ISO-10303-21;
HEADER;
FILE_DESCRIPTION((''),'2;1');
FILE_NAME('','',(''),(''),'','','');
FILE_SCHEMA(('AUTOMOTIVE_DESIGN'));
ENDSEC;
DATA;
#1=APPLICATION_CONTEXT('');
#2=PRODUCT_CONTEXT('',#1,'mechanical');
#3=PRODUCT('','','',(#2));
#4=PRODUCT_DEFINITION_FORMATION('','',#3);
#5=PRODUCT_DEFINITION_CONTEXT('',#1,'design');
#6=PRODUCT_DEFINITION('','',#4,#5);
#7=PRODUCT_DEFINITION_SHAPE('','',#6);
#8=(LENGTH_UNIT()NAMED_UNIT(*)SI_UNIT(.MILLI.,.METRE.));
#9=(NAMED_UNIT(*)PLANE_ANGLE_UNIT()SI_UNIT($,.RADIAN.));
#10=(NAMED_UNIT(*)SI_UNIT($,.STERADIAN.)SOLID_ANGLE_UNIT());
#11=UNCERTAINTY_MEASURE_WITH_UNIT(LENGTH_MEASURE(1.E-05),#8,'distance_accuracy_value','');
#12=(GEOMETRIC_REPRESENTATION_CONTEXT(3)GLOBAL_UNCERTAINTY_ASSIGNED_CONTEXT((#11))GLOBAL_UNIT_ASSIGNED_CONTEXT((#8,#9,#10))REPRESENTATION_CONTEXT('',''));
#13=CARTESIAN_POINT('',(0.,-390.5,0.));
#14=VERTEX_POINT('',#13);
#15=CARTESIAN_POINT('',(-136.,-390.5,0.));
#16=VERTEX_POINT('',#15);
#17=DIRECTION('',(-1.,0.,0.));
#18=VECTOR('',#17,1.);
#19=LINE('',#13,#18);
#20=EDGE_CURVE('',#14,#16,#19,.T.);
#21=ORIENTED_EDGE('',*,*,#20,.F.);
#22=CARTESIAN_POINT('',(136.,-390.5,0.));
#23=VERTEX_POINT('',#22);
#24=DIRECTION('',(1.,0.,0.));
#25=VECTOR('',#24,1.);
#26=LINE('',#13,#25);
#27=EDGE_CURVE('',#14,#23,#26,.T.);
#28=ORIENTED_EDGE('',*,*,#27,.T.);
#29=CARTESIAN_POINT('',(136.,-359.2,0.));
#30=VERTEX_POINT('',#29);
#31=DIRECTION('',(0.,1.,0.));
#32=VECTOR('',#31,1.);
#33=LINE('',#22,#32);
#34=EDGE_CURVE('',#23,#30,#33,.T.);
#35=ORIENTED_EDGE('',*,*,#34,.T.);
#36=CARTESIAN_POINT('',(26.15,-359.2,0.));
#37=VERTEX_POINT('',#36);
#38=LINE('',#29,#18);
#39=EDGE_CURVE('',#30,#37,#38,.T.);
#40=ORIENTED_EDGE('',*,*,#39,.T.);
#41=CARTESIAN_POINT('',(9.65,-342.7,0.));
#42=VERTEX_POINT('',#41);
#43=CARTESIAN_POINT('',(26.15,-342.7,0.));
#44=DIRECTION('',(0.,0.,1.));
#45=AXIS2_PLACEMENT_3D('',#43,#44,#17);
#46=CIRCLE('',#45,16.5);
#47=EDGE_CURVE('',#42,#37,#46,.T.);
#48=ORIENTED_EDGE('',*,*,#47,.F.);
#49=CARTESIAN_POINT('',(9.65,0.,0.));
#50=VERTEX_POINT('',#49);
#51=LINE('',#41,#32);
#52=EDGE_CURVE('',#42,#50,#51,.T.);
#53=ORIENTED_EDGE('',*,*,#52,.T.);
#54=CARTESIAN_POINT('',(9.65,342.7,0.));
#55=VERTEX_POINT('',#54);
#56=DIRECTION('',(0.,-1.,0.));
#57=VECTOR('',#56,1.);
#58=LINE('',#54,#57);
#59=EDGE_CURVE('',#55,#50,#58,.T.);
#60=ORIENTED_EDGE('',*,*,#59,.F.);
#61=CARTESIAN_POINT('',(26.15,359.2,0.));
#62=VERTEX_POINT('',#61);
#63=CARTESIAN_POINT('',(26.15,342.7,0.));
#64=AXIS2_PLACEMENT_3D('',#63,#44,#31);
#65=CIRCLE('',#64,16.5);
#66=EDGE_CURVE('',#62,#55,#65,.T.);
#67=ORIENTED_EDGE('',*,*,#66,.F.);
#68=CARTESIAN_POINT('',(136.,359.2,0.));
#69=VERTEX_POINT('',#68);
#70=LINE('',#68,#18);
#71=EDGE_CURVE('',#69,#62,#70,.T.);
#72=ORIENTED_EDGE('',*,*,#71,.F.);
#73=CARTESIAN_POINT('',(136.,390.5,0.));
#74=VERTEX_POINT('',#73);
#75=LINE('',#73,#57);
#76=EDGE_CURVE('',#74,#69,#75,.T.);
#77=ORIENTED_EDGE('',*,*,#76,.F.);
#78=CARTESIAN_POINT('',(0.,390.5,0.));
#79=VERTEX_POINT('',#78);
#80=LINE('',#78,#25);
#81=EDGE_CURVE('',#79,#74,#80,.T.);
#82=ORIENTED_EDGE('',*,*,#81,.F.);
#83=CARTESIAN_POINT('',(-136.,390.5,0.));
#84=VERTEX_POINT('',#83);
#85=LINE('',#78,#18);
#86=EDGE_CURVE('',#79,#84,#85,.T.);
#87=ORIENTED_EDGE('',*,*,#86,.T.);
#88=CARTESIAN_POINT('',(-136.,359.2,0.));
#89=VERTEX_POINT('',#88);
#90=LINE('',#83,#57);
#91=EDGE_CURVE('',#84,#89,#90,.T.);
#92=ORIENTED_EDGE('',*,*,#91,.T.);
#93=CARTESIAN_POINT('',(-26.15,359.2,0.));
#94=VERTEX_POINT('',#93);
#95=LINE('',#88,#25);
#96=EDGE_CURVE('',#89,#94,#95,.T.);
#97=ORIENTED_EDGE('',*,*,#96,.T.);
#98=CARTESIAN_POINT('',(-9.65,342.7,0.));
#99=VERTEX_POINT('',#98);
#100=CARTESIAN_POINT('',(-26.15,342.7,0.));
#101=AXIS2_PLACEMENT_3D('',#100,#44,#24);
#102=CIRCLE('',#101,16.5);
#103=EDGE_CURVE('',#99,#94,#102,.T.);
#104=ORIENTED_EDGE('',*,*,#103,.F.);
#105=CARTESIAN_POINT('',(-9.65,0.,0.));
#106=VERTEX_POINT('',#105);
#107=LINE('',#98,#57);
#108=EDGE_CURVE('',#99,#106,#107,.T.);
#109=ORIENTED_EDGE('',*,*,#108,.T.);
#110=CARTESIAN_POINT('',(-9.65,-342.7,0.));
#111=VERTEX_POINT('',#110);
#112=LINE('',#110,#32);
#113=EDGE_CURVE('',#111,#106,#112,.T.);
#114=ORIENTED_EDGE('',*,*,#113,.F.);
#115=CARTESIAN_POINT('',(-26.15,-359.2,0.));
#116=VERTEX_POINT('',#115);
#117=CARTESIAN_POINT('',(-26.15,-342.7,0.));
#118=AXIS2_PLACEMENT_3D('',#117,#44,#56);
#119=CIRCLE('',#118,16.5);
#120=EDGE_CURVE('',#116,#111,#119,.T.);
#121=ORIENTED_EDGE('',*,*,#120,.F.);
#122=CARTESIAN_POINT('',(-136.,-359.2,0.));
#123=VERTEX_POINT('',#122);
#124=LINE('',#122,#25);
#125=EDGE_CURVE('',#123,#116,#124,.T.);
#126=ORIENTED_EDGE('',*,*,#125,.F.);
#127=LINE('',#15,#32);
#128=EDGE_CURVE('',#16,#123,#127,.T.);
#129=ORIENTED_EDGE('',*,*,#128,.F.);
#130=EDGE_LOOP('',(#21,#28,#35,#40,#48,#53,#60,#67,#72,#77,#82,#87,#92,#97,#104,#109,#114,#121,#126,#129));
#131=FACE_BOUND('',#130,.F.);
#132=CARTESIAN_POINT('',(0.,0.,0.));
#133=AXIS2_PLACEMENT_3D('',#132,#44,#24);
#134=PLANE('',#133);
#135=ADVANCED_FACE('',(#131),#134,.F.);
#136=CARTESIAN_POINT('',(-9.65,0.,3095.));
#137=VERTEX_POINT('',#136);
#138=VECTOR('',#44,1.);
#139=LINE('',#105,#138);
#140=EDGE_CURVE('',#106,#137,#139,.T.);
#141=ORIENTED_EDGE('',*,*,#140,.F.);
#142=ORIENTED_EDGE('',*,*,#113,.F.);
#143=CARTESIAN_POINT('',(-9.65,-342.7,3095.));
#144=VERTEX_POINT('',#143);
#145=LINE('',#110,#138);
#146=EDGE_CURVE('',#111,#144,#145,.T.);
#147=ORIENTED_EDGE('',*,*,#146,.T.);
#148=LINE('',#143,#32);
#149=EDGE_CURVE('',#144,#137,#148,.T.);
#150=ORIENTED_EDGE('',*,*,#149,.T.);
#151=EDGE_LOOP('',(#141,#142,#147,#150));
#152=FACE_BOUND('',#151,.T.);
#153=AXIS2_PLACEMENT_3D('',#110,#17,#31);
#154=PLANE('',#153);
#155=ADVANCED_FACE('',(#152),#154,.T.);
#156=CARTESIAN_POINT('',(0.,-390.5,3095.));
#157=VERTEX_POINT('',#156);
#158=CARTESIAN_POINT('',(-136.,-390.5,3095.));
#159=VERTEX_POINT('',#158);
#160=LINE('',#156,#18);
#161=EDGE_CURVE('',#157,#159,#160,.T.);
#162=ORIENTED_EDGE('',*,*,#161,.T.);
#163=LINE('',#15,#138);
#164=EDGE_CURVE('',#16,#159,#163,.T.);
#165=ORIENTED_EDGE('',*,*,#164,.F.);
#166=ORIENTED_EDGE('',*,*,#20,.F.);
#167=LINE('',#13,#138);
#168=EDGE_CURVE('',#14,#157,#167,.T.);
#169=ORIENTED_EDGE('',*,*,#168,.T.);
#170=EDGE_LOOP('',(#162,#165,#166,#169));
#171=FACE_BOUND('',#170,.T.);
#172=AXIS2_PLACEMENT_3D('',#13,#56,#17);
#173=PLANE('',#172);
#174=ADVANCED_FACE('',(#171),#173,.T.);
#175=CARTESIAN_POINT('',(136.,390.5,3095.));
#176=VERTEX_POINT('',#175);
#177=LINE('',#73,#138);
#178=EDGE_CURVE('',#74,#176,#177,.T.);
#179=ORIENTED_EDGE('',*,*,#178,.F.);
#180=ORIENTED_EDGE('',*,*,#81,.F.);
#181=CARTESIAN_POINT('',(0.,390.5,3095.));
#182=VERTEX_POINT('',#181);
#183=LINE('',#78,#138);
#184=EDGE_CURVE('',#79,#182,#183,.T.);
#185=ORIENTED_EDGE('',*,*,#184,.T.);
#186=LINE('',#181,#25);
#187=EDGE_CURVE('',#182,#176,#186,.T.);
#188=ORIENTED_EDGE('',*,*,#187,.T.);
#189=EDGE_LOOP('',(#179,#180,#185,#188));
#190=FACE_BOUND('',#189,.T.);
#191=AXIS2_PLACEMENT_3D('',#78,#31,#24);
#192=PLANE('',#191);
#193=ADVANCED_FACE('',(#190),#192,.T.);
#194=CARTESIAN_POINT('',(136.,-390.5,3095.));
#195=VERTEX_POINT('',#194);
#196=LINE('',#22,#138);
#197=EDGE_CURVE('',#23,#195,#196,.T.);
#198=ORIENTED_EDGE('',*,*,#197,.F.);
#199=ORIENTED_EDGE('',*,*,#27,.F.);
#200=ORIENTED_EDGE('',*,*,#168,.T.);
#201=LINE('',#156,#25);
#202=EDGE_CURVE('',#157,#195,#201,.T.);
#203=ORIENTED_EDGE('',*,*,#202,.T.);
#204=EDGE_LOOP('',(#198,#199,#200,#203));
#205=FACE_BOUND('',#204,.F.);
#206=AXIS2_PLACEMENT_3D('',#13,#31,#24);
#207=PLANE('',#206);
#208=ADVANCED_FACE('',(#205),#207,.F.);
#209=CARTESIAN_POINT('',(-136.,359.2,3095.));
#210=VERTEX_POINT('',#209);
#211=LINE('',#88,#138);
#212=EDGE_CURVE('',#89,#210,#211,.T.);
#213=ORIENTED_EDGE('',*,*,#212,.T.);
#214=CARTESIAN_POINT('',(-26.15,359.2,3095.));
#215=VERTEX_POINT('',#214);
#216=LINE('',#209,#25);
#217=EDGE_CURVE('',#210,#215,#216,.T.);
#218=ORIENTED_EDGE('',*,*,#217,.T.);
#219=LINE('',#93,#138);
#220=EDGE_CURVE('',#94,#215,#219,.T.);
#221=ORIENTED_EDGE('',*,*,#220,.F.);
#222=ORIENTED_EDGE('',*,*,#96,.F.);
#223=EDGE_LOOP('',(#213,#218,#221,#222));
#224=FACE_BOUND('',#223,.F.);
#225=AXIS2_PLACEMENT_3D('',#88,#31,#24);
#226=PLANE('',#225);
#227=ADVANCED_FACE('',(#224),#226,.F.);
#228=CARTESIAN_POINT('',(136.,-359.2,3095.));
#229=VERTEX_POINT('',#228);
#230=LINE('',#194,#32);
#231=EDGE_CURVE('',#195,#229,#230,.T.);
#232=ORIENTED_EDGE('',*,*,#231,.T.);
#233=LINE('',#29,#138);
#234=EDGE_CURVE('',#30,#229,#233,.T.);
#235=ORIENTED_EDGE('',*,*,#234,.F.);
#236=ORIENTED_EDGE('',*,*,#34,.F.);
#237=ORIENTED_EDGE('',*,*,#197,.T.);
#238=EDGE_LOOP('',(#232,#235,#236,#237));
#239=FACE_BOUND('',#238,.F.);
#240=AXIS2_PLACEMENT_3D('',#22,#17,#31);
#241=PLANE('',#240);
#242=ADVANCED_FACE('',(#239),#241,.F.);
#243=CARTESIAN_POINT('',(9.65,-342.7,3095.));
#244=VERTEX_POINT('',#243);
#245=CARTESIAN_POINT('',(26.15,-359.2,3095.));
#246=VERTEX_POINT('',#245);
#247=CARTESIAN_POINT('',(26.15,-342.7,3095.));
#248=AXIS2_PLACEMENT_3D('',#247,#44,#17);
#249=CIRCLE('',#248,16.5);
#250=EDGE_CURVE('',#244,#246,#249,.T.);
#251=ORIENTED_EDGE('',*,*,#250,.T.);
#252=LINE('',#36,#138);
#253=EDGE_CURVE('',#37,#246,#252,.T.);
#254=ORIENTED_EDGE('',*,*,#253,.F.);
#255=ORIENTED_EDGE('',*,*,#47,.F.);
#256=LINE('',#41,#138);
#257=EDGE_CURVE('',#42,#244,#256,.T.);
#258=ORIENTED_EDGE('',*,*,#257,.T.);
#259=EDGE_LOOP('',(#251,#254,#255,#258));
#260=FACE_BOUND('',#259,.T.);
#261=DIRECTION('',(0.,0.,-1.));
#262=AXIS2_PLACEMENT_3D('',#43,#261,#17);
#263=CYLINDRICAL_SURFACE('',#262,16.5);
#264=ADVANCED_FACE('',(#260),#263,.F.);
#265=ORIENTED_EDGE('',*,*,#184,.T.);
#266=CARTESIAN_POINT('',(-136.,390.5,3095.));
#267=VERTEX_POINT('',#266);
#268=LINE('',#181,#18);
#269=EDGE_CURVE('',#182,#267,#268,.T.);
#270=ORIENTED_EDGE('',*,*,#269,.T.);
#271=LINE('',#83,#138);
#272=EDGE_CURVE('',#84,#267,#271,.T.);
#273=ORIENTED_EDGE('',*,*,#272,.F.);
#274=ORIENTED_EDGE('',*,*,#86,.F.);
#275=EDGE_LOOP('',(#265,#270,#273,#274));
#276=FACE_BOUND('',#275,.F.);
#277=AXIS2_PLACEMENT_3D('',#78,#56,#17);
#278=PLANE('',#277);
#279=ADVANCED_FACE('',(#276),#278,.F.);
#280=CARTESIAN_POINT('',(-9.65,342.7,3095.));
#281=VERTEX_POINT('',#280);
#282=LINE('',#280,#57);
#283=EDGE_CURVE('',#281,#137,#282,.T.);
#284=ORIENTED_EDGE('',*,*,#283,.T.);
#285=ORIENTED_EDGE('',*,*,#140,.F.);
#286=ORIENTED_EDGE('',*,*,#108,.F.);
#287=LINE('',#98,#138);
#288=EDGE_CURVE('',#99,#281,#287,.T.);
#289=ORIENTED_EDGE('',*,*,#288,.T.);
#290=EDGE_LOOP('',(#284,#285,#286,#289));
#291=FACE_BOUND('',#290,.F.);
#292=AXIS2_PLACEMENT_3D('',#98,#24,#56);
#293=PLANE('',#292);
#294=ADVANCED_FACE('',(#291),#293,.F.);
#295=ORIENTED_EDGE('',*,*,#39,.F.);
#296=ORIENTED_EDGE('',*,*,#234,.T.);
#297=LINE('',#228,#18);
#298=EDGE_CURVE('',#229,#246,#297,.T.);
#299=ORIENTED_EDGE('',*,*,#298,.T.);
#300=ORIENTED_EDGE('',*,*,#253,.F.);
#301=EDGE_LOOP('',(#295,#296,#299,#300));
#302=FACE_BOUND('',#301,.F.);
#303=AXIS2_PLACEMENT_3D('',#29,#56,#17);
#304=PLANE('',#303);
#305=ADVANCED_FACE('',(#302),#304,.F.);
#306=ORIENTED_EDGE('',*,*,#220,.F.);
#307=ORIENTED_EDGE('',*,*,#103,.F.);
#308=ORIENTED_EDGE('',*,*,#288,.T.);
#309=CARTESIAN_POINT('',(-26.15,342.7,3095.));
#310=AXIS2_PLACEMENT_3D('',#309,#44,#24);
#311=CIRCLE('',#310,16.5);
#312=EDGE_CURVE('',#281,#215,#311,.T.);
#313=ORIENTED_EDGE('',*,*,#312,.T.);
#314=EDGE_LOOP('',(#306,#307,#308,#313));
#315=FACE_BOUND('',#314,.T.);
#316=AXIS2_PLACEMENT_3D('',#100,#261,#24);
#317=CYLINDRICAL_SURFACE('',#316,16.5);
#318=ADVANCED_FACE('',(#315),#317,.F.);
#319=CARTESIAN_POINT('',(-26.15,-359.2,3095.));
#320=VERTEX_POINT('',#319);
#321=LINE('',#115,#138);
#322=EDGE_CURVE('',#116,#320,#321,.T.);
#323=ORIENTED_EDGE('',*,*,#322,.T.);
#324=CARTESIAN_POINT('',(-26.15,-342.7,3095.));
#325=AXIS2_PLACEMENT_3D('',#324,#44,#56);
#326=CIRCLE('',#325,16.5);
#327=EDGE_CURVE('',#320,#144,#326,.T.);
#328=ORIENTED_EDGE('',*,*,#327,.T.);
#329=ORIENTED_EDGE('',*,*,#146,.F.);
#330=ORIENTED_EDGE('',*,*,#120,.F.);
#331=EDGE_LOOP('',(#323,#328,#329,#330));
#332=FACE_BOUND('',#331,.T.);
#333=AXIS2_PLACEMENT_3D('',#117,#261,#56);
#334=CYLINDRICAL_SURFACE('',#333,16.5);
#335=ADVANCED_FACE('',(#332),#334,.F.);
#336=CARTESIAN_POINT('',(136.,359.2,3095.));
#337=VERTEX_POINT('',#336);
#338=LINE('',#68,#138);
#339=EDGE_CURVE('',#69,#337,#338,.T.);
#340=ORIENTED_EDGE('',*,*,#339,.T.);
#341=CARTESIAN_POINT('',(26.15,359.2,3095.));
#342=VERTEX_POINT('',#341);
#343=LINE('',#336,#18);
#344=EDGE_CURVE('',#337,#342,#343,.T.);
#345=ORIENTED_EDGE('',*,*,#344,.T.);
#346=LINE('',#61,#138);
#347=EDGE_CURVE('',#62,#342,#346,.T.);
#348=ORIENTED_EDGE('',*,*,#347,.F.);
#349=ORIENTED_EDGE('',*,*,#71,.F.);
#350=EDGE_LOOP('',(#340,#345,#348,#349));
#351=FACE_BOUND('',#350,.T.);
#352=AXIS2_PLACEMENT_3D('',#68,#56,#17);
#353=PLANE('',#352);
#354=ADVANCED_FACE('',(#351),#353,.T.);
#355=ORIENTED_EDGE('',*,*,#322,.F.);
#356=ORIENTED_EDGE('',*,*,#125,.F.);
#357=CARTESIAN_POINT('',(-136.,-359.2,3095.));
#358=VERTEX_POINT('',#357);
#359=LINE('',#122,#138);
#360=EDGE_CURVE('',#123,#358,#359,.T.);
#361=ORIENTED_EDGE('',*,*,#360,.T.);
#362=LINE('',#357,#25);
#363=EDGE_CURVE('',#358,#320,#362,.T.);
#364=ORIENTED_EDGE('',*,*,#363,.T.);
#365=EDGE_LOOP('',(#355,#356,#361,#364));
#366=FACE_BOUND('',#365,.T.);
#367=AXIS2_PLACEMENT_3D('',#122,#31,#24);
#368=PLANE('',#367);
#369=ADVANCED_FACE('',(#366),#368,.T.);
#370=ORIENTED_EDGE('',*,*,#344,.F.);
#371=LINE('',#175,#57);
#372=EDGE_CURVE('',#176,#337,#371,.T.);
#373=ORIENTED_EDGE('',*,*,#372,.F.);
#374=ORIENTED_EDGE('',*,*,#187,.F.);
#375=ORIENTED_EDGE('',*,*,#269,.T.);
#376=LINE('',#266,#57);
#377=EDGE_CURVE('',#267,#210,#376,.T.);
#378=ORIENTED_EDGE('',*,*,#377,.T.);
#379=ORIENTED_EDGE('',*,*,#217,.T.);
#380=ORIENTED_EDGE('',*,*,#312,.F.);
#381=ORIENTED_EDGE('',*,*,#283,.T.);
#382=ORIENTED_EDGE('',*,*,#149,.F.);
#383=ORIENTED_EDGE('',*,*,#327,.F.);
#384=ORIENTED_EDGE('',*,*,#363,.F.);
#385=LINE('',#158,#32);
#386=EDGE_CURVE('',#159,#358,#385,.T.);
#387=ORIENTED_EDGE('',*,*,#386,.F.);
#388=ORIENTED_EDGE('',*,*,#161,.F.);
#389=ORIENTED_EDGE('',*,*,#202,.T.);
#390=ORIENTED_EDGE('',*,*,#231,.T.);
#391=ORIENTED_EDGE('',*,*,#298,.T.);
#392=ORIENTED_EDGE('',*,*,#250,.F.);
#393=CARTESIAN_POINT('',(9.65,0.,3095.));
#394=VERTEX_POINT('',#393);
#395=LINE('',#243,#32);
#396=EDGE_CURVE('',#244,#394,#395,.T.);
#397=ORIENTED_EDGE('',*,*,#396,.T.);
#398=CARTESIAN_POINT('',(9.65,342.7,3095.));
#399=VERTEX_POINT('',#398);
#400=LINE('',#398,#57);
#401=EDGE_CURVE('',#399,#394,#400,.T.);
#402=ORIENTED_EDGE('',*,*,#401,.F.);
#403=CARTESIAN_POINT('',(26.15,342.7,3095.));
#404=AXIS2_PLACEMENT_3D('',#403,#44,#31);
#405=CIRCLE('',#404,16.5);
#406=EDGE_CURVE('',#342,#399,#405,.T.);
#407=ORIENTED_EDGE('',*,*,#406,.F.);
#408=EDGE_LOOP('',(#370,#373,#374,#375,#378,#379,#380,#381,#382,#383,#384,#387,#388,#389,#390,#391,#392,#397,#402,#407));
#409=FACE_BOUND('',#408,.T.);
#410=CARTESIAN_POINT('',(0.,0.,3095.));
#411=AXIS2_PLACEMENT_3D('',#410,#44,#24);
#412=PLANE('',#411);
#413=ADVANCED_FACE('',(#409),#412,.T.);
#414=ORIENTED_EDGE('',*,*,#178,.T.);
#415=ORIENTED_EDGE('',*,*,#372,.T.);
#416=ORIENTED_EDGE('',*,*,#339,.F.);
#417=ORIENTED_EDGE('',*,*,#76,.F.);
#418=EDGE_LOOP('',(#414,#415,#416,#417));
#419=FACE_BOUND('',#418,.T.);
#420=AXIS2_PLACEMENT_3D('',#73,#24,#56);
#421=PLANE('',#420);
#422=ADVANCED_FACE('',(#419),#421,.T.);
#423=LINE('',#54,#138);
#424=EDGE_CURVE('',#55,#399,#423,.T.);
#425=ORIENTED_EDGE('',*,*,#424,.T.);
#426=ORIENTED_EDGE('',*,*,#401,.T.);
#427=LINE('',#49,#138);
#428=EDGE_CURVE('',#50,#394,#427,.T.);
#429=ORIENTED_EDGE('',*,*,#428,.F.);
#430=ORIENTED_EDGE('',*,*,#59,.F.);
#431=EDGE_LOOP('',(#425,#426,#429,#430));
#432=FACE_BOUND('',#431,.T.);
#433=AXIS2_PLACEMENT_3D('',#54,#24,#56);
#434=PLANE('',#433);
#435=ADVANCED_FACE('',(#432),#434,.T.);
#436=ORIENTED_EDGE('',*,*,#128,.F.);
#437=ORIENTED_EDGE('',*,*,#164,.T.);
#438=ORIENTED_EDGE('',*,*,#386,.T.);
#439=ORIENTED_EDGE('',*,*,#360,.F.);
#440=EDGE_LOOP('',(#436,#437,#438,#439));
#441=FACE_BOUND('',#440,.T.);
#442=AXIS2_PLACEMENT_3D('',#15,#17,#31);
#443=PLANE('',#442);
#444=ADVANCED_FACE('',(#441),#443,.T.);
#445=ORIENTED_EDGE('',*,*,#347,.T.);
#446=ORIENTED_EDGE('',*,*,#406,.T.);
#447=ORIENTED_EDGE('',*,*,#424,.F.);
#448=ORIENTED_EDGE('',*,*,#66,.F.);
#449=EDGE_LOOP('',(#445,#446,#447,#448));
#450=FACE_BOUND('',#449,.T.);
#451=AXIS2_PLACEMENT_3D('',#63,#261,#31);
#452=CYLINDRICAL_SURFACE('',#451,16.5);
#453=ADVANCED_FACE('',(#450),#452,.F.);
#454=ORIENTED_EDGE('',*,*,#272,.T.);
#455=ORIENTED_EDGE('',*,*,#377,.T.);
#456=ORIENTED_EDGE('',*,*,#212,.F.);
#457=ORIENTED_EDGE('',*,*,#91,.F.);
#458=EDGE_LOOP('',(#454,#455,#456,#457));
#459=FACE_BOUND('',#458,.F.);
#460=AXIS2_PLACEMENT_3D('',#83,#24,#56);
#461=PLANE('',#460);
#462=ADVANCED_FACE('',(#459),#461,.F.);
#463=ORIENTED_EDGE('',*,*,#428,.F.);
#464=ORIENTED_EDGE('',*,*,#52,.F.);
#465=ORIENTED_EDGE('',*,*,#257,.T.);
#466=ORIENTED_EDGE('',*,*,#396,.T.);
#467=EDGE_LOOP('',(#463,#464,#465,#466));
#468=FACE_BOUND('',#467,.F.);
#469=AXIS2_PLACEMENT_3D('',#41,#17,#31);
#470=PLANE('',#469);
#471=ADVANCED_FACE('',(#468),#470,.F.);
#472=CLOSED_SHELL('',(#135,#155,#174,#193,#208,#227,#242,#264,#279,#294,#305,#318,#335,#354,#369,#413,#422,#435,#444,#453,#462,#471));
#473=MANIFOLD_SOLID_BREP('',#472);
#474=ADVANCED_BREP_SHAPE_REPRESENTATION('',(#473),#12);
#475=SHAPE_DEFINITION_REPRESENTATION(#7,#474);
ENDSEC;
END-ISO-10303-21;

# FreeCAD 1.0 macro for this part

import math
import FreeCAD as App
import Part
import Sketcher
Q = App.Units.Quantity

doc = App.newDocument("Part")
params = doc.addObject("Spreadsheet::Sheet", "Params")
for row, (alias, value) in enumerate([
    ("sketch1_radius", "16.5 mm"),
    ("sketch1_height", "31.3 mm"),
    ("pad1_length", "3095 mm"),
], start=1):
    params.set(f"A{row}", alias)
    params.set(f"B{row}", "=" + value)
    params.setAlias(f"B{row}", alias)

body = doc.addObject("PartDesign::Body", "Body")

# Sketch on XY plane
sketch1 = body.newObject("Sketcher::SketchObject", "Sketch")
sketch1.AttachmentSupport = (doc.getObject("XY_Plane"), [""])
sketch1.MapMode = "FlatFace"
sketch1.addGeometry([
    Part.LineSegment(App.Vector(-136, -359, 0), App.Vector(-136, -390, 0)),  # 0
    Part.LineSegment(App.Vector(-136, -390, 0), App.Vector(136, -390, 0)),  # 1
    Part.LineSegment(App.Vector(136, -390, 0), App.Vector(136, -359, 0)),  # 2
    Part.LineSegment(App.Vector(136, -359, 0), App.Vector(26, -359, 0)),  # 3
    Part.ArcOfCircle(Part.Circle(App.Vector(26, -343, 0), App.Vector(0, 0, 1), 16), math.radians(180), math.radians(270)),  # 4
    Part.LineSegment(App.Vector(10, -343, 0), App.Vector(10, 343, 0)),  # 5
    Part.ArcOfCircle(Part.Circle(App.Vector(26, 343, 0), App.Vector(0, 0, 1), 16), math.radians(90), math.radians(180)),  # 6
    Part.LineSegment(App.Vector(26, 359, 0), App.Vector(136, 359, 0)),  # 7
    Part.LineSegment(App.Vector(136, 359, 0), App.Vector(136, 390, 0)),  # 8
    Part.LineSegment(App.Vector(136, 390, 0), App.Vector(-136, 390, 0)),  # 9
    Part.LineSegment(App.Vector(-136, 390, 0), App.Vector(-136, 359, 0)),  # 10
    Part.LineSegment(App.Vector(-136, 359, 0), App.Vector(-26, 359, 0)),  # 11
    Part.ArcOfCircle(Part.Circle(App.Vector(-26, 343, 0), App.Vector(0, 0, 1), 16), math.radians(0), math.radians(90)),  # 12
    Part.LineSegment(App.Vector(-10, 343, 0), App.Vector(-10, -343, 0)),  # 13
    Part.ArcOfCircle(Part.Circle(App.Vector(-26, -343, 0), App.Vector(0, 0, 1), 16), math.radians(-90), math.radians(0)),  # 14
    Part.LineSegment(App.Vector(-26, -359, 0), App.Vector(-136, -359, 0)),  # 15
], False)
sketch1.addConstraint([
    Sketcher.Constraint("Coincident", 0, 2, 1, 1),
    Sketcher.Constraint("Coincident", 1, 2, 2, 1),
    Sketcher.Constraint("Coincident", 2, 2, 3, 1),
    Sketcher.Constraint("Tangent", 3, 2, 4, 2),
    Sketcher.Constraint("Tangent", 4, 1, 5, 1),
    Sketcher.Constraint("Tangent", 5, 2, 6, 2),
    Sketcher.Constraint("Tangent", 6, 1, 7, 1),
    Sketcher.Constraint("Coincident", 7, 2, 8, 1),
    Sketcher.Constraint("Coincident", 8, 2, 9, 1),
    Sketcher.Constraint("Coincident", 9, 2, 10, 1),
    Sketcher.Constraint("Coincident", 10, 2, 11, 1),
    Sketcher.Constraint("Tangent", 11, 2, 12, 2),
    Sketcher.Constraint("Tangent", 12, 1, 13, 1),
    Sketcher.Constraint("Tangent", 13, 2, 14, 2),
    Sketcher.Constraint("Tangent", 14, 1, 15, 1),
    Sketcher.Constraint("Coincident", 15, 2, 0, 1),
    Sketcher.Constraint("Vertical", 0),
    Sketcher.Constraint("Horizontal", 1),
    Sketcher.Constraint("Vertical", 2),
    Sketcher.Constraint("Horizontal", 3),
    Sketcher.Constraint("Vertical", 5),
    Sketcher.Constraint("Horizontal", 7),
    Sketcher.Constraint("Vertical", 8),
    Sketcher.Constraint("Horizontal", 9),
    Sketcher.Constraint("Vertical", 10),
    Sketcher.Constraint("Horizontal", 11),
    Sketcher.Constraint("Vertical", 13),
    Sketcher.Constraint("Horizontal", 15),
    Sketcher.Constraint("Equal", 4, 6),
    Sketcher.Constraint("Equal", 6, 12),
    Sketcher.Constraint("Equal", 12, 14),
    Sketcher.Constraint("Symmetric", 4, 3, 12, 3, -1, 1),
    Sketcher.Constraint("Symmetric", 0, 2, 8, 2, -1, 1),
    Sketcher.Constraint("Symmetric", 7, 2, 10, 2, -2),
    Sketcher.Constraint("Symmetric", 2, 2, 15, 2, -2),
    Sketcher.Constraint("Radius", 4, Q("16.5 mm")),
    Sketcher.Constraint("DistanceY", 0, 2, 0, 1, Q("31.3 mm")),
    Sketcher.Constraint("DistanceX", 0, 2, -1, 1, Q("136 mm")),
    Sketcher.Constraint("DistanceY", 0, 2, -1, 1, Q("390.5 mm")),
    Sketcher.Constraint("DistanceX", -1, 1, 4, 1, Q("9.65 mm")),
])
sketch1.setExpression("Constraints[35]", "Params.sketch1_radius")
sketch1.setExpression("Constraints[36]", "Params.sketch1_height")
pad1 = body.newObject("PartDesign::Pad", "Pad")
pad1.Profile = sketch1
pad1.setExpression("Length", "Params.pad1_length")

doc.recompute()
